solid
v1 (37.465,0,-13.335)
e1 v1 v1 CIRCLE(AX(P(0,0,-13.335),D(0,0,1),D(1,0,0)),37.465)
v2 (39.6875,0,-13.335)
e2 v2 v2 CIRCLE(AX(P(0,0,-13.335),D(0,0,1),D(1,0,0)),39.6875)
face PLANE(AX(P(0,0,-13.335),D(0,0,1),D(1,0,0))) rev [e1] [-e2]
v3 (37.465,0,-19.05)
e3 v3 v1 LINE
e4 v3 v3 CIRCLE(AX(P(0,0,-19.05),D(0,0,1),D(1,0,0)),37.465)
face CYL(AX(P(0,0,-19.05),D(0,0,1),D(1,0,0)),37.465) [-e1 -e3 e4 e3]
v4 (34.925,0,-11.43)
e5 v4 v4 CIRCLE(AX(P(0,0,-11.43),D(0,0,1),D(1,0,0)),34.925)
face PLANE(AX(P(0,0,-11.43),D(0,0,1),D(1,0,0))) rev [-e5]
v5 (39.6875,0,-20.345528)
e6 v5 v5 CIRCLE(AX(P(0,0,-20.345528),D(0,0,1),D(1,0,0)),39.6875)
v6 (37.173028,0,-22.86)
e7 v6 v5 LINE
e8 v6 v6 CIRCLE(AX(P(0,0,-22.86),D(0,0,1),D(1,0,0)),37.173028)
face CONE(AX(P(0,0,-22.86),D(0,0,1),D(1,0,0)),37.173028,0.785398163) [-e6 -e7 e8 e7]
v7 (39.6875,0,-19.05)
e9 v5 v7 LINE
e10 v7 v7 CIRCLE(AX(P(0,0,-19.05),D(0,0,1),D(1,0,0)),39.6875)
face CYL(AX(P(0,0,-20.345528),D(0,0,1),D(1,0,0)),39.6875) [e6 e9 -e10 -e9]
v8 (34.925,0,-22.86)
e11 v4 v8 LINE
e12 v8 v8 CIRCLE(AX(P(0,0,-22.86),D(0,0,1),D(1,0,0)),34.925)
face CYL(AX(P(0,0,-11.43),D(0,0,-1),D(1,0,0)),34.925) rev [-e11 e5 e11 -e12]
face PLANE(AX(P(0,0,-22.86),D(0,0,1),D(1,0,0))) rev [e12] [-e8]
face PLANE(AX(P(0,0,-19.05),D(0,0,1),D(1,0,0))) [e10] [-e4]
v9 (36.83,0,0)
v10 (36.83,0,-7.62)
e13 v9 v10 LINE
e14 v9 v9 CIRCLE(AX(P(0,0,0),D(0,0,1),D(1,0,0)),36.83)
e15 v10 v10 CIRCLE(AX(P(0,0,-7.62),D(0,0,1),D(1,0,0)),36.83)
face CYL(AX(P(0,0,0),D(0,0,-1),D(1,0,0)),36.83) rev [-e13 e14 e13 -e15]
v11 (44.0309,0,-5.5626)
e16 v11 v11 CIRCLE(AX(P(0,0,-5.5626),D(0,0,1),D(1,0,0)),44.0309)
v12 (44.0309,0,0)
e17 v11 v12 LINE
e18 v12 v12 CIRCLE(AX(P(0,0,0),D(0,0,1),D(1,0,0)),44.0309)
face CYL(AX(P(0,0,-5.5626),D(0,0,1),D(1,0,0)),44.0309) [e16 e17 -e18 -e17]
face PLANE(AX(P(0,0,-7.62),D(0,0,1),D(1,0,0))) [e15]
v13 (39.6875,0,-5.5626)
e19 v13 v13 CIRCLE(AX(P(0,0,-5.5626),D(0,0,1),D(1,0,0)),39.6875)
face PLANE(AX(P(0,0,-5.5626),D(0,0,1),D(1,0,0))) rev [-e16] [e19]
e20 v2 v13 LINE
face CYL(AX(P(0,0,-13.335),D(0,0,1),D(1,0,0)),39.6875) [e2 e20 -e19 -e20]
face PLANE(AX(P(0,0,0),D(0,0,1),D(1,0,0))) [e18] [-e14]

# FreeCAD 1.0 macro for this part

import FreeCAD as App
import Part
import Sketcher

V = App.Vector
Q = App.Units.Quantity


def add_polygon(sketch, points):
    """Adds a closed chain of lines whose ends are joined by coincident constraints."""
    first, n = sketch.GeometryCount, len(points)
    for a, b in zip(points, points[1:] + points[:1]):
        sketch.addGeometry(Part.LineSegment(App.Vector(*a, 0), App.Vector(*b, 0)), False)
    for i in range(n):
        sketch.addConstraint(Sketcher.Constraint("Coincident", first + i, 2, first + (i + 1) % n, 1))

doc = App.newDocument("Part")
body = doc.addObject("PartDesign::Body", "Body")

sketch1 = body.newObject("Sketcher::SketchObject", "Sketch")
sketch1.AttachmentSupport = (doc.getObject("XZ_Plane"), [""])
sketch1.MapMode = "FlatFace"
add_polygon(sketch1, [(36.8, -7.6), (0, -7.6), (0, -11.4), (34.9, -11.4), (34.9, -22.9), (37.2, -22.9), (39.7, -20.3), (39.7, -19.1), (37.5, -19.1), (37.5, -13.3), (39.7, -13.3), (39.7, -5.6), (44, -5.6), (44, 0), (36.8, 0)])
sketch1.addConstraint([
    Sketcher.Constraint("Horizontal", 0),
    Sketcher.Constraint("Vertical", 1),
    Sketcher.Constraint("Horizontal", 2),
    Sketcher.Constraint("Vertical", 3),
    Sketcher.Constraint("Horizontal", 4),
    Sketcher.Constraint("Vertical", 6),
    Sketcher.Constraint("Horizontal", 7),
    Sketcher.Constraint("Vertical", 8),
    Sketcher.Constraint("Horizontal", 9),
    Sketcher.Constraint("Vertical", 10),
    Sketcher.Constraint("Horizontal", 11),
    Sketcher.Constraint("Vertical", 12),
    Sketcher.Constraint("Horizontal", 13),
    Sketcher.Constraint("Vertical", 14),
    Sketcher.Constraint("PointOnObject", 0, 2, -2),
    Sketcher.Constraint("PointOnObject", 12, 2, -1),
    Sketcher.Constraint("Vertical", 6, 2, 9, 2),
    Sketcher.Constraint("DistanceY", 14, 2, 14, 1, Q("0.3 in")),
    Sketcher.Constraint("Angle", 5, Q("45 deg")),
    Sketcher.Constraint("DistanceX", 0, 2, 0, 1, Q("1.45 in")),
    Sketcher.Constraint("DistanceY", 1, 2, 1, 1, Q("0.15 in")),
    Sketcher.Constraint("DistanceY", 3, 2, 3, 1, Q("0.45 in")),
    Sketcher.Constraint("DistanceY", 6, 2, 2, 2, Q("0.3 in")),
    Sketcher.Constraint("DistanceX", 3, 2, 7, 2, Q("0.1 in")),
    Sketcher.Constraint("Distance", 5, Q("0.14 in")),
    Sketcher.Constraint("DistanceX", 2, 1, 2, 2, Q("1.375 in")),
    Sketcher.Constraint("DistanceX", 11, 1, 11, 2, Q("0.171 in")),
    Sketcher.Constraint("DistanceY", 8, 1, 8, 2, Q("0.225 in")),
    Sketcher.Constraint("DistanceY", 10, 1, 10, 2, Q("0.306 in")),
    Sketcher.Constraint("DistanceX", 7, 2, 7, 1, Q("0.0875 in")),
])
revolution = body.newObject("PartDesign::Revolution", "Revolution")
revolution.Profile = sketch1
revolution.ReferenceAxis = (sketch1, ["V_Axis"])
revolution.Angle = 360

doc.recompute()
